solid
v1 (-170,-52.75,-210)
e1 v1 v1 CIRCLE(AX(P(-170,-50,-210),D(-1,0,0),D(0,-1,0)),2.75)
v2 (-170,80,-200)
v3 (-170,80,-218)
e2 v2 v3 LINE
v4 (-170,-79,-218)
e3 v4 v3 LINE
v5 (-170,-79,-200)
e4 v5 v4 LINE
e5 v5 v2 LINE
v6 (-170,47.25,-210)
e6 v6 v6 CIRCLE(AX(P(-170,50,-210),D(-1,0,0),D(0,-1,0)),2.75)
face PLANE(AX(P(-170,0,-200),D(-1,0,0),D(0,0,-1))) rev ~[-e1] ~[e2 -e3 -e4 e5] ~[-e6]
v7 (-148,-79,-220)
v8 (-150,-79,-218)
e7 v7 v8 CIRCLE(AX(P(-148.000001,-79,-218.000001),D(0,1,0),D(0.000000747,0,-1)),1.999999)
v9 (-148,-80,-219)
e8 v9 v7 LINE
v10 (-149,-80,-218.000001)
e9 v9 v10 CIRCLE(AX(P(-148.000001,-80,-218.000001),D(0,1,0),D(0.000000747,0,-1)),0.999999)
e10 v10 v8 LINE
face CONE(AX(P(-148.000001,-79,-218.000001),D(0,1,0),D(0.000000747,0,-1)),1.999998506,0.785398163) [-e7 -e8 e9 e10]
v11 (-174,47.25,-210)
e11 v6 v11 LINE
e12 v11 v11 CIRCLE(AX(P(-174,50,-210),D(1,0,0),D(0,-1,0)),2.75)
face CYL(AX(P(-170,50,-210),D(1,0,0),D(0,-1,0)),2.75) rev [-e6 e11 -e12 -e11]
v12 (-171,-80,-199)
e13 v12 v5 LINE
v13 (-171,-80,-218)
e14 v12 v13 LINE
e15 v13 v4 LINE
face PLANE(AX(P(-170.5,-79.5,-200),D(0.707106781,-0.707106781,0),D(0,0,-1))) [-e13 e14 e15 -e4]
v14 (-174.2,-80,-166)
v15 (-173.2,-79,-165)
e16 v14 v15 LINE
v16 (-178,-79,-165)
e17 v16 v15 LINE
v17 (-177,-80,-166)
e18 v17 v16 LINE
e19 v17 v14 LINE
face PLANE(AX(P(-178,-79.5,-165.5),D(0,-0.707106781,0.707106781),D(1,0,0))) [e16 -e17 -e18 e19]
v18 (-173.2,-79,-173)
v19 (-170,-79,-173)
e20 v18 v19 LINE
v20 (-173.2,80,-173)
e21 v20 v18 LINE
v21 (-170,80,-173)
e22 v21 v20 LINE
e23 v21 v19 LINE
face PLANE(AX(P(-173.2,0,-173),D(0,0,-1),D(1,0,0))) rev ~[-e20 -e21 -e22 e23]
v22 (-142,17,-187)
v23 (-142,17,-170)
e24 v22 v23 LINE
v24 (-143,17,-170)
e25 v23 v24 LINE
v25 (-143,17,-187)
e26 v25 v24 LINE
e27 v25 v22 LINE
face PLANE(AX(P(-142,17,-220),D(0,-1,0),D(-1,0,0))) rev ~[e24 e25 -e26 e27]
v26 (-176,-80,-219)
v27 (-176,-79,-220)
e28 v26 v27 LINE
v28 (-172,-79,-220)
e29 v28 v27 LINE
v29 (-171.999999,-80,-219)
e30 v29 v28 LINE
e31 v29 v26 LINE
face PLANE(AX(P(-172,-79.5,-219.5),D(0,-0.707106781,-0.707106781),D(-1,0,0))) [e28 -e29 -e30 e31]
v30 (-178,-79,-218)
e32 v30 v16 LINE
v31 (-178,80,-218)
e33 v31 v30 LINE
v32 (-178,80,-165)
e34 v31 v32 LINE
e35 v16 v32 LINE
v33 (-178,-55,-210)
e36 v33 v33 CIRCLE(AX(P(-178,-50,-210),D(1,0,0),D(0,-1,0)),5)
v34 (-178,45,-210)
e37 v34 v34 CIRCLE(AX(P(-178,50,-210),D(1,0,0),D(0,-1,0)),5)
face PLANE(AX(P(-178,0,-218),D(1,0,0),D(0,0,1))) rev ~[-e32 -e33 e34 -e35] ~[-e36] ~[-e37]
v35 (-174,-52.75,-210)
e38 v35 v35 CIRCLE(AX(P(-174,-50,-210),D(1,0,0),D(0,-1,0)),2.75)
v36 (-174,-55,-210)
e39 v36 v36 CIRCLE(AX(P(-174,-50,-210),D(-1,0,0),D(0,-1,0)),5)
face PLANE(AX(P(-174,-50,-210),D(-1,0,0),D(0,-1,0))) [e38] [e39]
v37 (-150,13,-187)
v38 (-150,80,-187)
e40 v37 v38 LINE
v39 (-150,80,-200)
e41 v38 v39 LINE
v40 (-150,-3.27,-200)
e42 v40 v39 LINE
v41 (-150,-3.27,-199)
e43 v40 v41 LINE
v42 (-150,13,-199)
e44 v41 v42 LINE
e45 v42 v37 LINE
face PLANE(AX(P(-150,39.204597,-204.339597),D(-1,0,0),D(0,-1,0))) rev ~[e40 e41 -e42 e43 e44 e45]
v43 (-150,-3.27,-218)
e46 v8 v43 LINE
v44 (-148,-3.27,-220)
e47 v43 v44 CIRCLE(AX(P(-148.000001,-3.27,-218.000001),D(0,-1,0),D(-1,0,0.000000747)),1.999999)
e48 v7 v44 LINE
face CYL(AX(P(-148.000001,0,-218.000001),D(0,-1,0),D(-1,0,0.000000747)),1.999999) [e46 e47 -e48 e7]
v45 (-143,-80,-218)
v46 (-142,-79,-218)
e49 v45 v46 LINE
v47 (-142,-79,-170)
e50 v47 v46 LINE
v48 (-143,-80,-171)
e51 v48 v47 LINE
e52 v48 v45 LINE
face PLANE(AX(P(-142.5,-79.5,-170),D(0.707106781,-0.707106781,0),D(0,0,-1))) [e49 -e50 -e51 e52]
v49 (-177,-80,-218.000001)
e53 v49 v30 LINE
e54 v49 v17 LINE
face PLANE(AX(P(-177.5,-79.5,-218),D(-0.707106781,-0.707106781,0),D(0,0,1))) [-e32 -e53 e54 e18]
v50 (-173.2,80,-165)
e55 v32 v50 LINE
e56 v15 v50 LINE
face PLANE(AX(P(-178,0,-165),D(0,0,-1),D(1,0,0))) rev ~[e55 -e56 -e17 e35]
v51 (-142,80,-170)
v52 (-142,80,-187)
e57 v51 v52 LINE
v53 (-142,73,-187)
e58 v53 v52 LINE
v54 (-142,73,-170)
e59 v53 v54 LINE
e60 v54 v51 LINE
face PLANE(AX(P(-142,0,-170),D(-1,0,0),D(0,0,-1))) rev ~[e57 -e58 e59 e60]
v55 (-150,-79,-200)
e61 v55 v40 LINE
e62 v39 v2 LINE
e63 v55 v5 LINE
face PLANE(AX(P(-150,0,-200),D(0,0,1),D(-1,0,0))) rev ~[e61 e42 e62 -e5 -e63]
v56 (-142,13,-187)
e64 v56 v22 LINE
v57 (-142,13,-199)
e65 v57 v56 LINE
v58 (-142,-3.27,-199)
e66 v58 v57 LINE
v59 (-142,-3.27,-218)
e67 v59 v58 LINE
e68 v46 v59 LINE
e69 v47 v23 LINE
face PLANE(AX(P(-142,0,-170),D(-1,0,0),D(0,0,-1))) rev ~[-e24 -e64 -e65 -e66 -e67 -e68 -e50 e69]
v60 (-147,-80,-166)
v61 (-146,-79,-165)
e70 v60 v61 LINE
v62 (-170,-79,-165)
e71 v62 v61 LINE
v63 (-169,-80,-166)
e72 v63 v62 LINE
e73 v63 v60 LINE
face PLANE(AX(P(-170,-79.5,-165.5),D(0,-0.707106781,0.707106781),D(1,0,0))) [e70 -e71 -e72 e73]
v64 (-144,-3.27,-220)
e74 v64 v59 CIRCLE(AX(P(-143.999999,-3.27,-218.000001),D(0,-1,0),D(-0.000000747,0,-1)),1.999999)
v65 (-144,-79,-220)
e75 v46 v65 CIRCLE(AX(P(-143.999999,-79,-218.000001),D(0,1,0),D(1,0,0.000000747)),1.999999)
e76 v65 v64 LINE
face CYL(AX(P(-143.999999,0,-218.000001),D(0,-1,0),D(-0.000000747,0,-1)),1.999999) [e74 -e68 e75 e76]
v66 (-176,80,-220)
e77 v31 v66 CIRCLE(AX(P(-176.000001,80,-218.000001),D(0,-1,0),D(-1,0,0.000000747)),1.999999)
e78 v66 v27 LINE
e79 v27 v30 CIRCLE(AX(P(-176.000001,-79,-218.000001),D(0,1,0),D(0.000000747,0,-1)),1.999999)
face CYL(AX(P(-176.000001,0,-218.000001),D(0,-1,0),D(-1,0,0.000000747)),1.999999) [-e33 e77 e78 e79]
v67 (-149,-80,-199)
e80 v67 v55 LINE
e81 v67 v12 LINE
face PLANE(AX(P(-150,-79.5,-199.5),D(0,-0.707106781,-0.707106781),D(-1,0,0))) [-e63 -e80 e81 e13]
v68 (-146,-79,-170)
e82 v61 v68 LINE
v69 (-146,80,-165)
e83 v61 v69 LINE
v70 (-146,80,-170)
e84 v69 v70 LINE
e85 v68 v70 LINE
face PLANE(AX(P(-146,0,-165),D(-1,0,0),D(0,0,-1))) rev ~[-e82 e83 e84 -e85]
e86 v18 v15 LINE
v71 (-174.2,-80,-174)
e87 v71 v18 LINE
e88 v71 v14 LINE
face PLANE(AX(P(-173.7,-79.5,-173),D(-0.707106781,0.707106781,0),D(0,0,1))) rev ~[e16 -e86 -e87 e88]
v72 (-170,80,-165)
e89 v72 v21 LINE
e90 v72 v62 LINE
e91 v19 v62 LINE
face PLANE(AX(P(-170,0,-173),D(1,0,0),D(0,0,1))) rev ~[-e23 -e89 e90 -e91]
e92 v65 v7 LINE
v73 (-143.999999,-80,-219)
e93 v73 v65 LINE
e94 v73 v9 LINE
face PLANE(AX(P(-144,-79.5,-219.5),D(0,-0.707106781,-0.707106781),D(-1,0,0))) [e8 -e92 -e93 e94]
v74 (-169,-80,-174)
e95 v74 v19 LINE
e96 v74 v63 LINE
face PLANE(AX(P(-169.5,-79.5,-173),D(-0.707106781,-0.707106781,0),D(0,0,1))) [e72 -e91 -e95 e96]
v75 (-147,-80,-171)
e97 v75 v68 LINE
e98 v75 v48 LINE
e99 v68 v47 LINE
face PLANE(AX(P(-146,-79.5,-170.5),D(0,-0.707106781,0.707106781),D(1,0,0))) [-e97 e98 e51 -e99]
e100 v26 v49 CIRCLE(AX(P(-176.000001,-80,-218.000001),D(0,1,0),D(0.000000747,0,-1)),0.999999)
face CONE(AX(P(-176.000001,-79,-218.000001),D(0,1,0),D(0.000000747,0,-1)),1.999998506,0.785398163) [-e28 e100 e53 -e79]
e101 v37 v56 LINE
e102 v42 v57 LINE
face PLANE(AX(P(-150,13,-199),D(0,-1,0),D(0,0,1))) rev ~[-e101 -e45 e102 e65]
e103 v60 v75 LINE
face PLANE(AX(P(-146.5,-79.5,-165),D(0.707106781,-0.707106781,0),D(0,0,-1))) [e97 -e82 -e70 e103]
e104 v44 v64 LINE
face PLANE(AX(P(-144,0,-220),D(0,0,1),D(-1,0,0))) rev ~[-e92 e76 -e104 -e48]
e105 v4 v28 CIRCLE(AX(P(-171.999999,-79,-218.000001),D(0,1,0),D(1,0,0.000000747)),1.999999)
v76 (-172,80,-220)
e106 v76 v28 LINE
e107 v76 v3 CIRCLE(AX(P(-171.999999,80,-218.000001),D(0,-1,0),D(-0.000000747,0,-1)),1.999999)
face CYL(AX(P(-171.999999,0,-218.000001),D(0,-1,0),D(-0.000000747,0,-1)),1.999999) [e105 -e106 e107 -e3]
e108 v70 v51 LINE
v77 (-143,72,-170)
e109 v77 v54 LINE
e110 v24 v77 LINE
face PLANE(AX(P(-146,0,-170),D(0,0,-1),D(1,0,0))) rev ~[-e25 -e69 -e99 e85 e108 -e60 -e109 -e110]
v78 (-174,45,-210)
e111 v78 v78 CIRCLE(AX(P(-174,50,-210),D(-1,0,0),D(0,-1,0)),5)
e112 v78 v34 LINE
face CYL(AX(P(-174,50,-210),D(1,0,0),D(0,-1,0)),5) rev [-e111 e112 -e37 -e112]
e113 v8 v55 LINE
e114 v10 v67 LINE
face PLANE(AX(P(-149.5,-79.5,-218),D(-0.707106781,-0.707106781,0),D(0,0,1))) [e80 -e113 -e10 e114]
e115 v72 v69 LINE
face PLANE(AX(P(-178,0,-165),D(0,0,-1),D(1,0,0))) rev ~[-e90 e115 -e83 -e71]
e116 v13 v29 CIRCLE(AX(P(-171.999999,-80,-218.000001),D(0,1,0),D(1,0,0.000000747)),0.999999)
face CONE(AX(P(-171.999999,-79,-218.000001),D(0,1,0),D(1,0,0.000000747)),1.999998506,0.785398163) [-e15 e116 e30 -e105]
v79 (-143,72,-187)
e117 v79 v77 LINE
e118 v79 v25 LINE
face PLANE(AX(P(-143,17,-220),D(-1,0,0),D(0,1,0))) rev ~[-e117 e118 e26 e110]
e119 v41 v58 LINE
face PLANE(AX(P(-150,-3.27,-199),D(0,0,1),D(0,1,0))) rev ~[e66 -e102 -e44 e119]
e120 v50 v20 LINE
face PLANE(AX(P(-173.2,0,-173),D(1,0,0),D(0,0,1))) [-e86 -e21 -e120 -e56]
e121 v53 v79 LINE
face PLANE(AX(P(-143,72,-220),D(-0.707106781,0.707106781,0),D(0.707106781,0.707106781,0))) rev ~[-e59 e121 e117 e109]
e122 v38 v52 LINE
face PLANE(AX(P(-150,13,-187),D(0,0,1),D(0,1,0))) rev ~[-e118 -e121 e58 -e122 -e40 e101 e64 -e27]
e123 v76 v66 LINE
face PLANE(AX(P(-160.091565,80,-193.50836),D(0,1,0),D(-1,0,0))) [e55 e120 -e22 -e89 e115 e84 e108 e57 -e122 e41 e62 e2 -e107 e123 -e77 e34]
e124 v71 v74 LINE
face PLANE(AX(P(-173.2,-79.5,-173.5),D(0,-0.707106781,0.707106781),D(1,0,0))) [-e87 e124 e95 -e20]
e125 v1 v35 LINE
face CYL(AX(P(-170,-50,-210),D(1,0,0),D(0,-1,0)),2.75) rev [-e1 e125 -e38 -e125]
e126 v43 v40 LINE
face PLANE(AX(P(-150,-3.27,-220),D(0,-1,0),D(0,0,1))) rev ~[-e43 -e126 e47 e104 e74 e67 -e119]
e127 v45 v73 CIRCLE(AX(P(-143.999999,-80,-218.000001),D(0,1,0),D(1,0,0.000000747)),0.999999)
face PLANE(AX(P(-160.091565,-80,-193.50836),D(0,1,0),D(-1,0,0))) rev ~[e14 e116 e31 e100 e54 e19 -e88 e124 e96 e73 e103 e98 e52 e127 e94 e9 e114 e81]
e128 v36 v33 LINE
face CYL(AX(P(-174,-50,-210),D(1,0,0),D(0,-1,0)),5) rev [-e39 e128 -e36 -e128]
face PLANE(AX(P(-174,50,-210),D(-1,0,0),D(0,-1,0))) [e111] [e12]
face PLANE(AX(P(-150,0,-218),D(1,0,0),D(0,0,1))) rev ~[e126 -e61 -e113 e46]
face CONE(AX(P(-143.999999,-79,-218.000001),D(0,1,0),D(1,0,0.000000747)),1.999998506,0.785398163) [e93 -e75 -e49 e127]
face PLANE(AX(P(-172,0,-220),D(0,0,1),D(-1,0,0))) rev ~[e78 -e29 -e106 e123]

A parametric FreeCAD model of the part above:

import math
import FreeCAD as App
import Part
import Sketcher
Q = App.Units.Quantity


def edges_at(feature, points):
    """Names of the edges that pass closest to the given points."""
    edges = feature.Shape.Edges
    near = lambda p: min(range(len(edges)), key=lambda i: edges[i].distToShape(Part.Vertex(*p))[0])
    return sorted({f"Edge{near(p) + 1}" for p in points})


def add_polygon(sketch, points):
    """Adds a closed chain of lines whose ends are joined by coincident constraints."""
    first, n = sketch.GeometryCount, len(points)
    for a, b in zip(points, points[1:] + points[:1]):
        sketch.addGeometry(Part.LineSegment(App.Vector(*a, 0), App.Vector(*b, 0)), False)
    for i in range(n):
        sketch.addConstraint(Sketcher.Constraint("Coincident", first + i, 2, first + (i + 1) % n, 1))

doc = App.newDocument("Part")
body = doc.addObject("PartDesign::Body", "Body")

# Sketch on YZ plane
sketch1 = body.newObject("Sketcher::SketchObject", "Sketch")
sketch1.AttachmentSupport = (doc.getObject("YZ_Plane"), [""])
sketch1.MapMode = "FlatFace"
sketch1.addGeometry(Part.LineSegment(App.Vector(-8, 55, 0), App.Vector(-8, 2, 0)), False)
sketch1.addGeometry(Part.ArcOfCircle(Part.Circle(App.Vector(-6, 2, 0), App.Vector(0, 0, 1), 2), math.radians(180), math.radians(270)), False)
sketch1.addGeometry(Part.LineSegment(App.Vector(-6, 0, 0), App.Vector(-2, 0, 0)), False)
sketch1.addGeometry(Part.ArcOfCircle(Part.Circle(App.Vector(-2, 2, 0), App.Vector(0, 0, 1), 2), math.radians(-90), math.radians(0)), False)
sketch1.addGeometry(Part.LineSegment(App.Vector(0, 2, 0), App.Vector(0, 20, 0)), False)
sketch1.addGeometry(Part.LineSegment(App.Vector(0, 20, 0), App.Vector(20, 20, 0)), False)
sketch1.addGeometry(Part.LineSegment(App.Vector(20, 20, 0), App.Vector(20, 2, 0)), False)
sketch1.addGeometry(Part.ArcOfCircle(Part.Circle(App.Vector(22, 2, 0), App.Vector(0, 0, 1), 2), math.radians(180), math.radians(270)), False)
sketch1.addGeometry(Part.LineSegment(App.Vector(22, 0, 0), App.Vector(26, 0, 0)), False)
sketch1.addGeometry(Part.ArcOfCircle(Part.Circle(App.Vector(26, 2, 0), App.Vector(0, 0, 1), 2), math.radians(-90), math.radians(0)), False)
sketch1.addGeometry(Part.LineSegment(App.Vector(28, 2, 0), App.Vector(28, 50, 0)), False)
sketch1.addGeometry(Part.LineSegment(App.Vector(28, 50, 0), App.Vector(24, 50, 0)), False)
sketch1.addGeometry(Part.LineSegment(App.Vector(24, 50, 0), App.Vector(24, 55, 0)), False)
sketch1.addGeometry(Part.LineSegment(App.Vector(24, 55, 0), App.Vector(-8, 55, 0)), False)
sketch1.addConstraint(Sketcher.Constraint("Tangent", 0, 2, 1, 1))
sketch1.addConstraint(Sketcher.Constraint("Tangent", 1, 2, 2, 1))
sketch1.addConstraint(Sketcher.Constraint("Tangent", 2, 2, 3, 1))
sketch1.addConstraint(Sketcher.Constraint("Tangent", 3, 2, 4, 1))
sketch1.addConstraint(Sketcher.Constraint("Coincident", 4, 2, 5, 1))
sketch1.addConstraint(Sketcher.Constraint("Coincident", 5, 2, 6, 1))
sketch1.addConstraint(Sketcher.Constraint("Tangent", 6, 2, 7, 1))
sketch1.addConstraint(Sketcher.Constraint("Tangent", 7, 2, 8, 1))
sketch1.addConstraint(Sketcher.Constraint("Tangent", 8, 2, 9, 1))
sketch1.addConstraint(Sketcher.Constraint("Tangent", 9, 2, 10, 1))
sketch1.addConstraint(Sketcher.Constraint("Coincident", 10, 2, 11, 1))
sketch1.addConstraint(Sketcher.Constraint("Coincident", 11, 2, 12, 1))
sketch1.addConstraint(Sketcher.Constraint("Coincident", 12, 2, 13, 1))
sketch1.addConstraint(Sketcher.Constraint("Coincident", 13, 2, 0, 1))
sketch1.addConstraint(Sketcher.Constraint("Vertical", 0))
sketch1.addConstraint(Sketcher.Constraint("Horizontal", 2))
sketch1.addConstraint(Sketcher.Constraint("Vertical", 4))
sketch1.addConstraint(Sketcher.Constraint("Horizontal", 5))
sketch1.addConstraint(Sketcher.Constraint("Vertical", 6))
sketch1.addConstraint(Sketcher.Constraint("Horizontal", 8))
sketch1.addConstraint(Sketcher.Constraint("Vertical", 10))
sketch1.addConstraint(Sketcher.Constraint("Horizontal", 11))
sketch1.addConstraint(Sketcher.Constraint("Vertical", 12))
sketch1.addConstraint(Sketcher.Constraint("Horizontal", 13))
sketch1.addConstraint(Sketcher.Constraint("Equal", 1, 3))
sketch1.addConstraint(Sketcher.Constraint("Equal", 3, 7))
sketch1.addConstraint(Sketcher.Constraint("Equal", 7, 9))
sketch1.addConstraint(Sketcher.Constraint("PointOnObject", 1, 2, -1))
sketch1.addConstraint(Sketcher.Constraint("PointOnObject", 3, 2, -2))
sketch1.addConstraint(Sketcher.Constraint("PointOnObject", 7, 2, -1))
sketch1.addConstraint(Sketcher.Constraint("Equal", 2, 8))
sketch1.addConstraint(Sketcher.Constraint("Equal", 8, 11))
sketch1.addConstraint(Sketcher.Constraint("Radius", 1, Q("1.999999 mm")))
sketch1.addConstraint(Sketcher.Constraint("DistanceX", 2, 1, 2, 2, Q("4 mm")))
sketch1.addConstraint(Sketcher.Constraint("DistanceX", 5, 1, 5, 2, Q("20 mm")))
sketch1.addConstraint(Sketcher.Constraint("DistanceY", 0, 2, 0, 1, Q("53 mm")))
sketch1.addConstraint(Sketcher.Constraint("DistanceY", 4, 1, 4, 2, Q("18 mm")))
sketch1.addConstraint(Sketcher.Constraint("DistanceY", 10, 1, 10, 2, Q("48 mm")))
pad1 = body.newObject("PartDesign::Pad", "Pad")
pad1.Profile = sketch1
pad1.Length = 160
pad1.Midplane = True

# Sketch on XZ plane
sketch2 = body.newObject("Sketcher::SketchObject", "Sketch001")
sketch2.AttachmentSupport = (doc.getObject("XZ_Plane"), [""])
sketch2.MapMode = "FlatFace"
sketch2.addGeometry(Part.Circle(App.Vector(-50, 10, 0), App.Vector(0, 0, 1), 2.8), False)
sketch2.addGeometry(Part.Circle(App.Vector(50, 10, 0), App.Vector(0, 0, 1), 2.8), False)
sketch2.addConstraint(Sketcher.Constraint("Equal", 0, 1))
sketch2.addConstraint(Sketcher.Constraint("Symmetric", 0, 3, 1, 3, -2))
sketch2.addConstraint(Sketcher.Constraint("Diameter", 0, Q("5.5 mm")))
sketch2.addConstraint(Sketcher.Constraint("DistanceX", 0, 3, -1, 1, Q("50 mm")))
sketch2.addConstraint(Sketcher.Constraint("DistanceY", -1, 1, 0, 3, Q("10 mm")))
pocket1 = body.newObject("PartDesign::Pocket", "Pocket")
pocket1.Profile = sketch2
pocket1.Type = "ThroughAll"
pocket1.Reversed = True

# Sketch on XZ plane
sketch3 = body.newObject("Sketcher::SketchObject", "Sketch002")
sketch3.AttachmentSupport = (doc.getObject("XZ_Plane"), [""])
sketch3.MapMode = "FlatFace"
sketch3.AttachmentOffset = App.Placement(App.Vector(0, 0, 4), App.Rotation())
sketch3.addGeometry(Part.Circle(App.Vector(50, 10, 0), App.Vector(0, 0, 1), 5), False)
sketch3.addGeometry(Part.Circle(App.Vector(-50, 10, 0), App.Vector(0, 0, 1), 5), False)
sketch3.addConstraint(Sketcher.Constraint("Equal", 0, 1))
sketch3.addConstraint(Sketcher.Constraint("Symmetric", 0, 3, 1, 3, -2))
sketch3.addConstraint(Sketcher.Constraint("Diameter", 0, Q("10 mm")))
sketch3.addConstraint(Sketcher.Constraint("DistanceX", -1, 1, 0, 3, Q("50 mm")))
sketch3.addConstraint(Sketcher.Constraint("DistanceY", -1, 1, 0, 3, Q("10 mm")))
pocket2 = body.newObject("PartDesign::Pocket", "Pocket001")
pocket2.Profile = sketch3
pocket2.Type = "ThroughAll"
pocket2.Reversed = True

# Sketch on YZ plane
sketch4 = body.newObject("Sketcher::SketchObject", "Sketch003")
sketch4.AttachmentSupport = (doc.getObject("YZ_Plane"), [""])
sketch4.MapMode = "FlatFace"
add_polygon(sketch4, [(-3.2, 55), (-3.2, 47), (0, 47), (0, 55)])  # lines 0-3
sketch4.addConstraint(Sketcher.Constraint("Vertical", 0))
sketch4.addConstraint(Sketcher.Constraint("Horizontal", 1))
sketch4.addConstraint(Sketcher.Constraint("Vertical", 2))
sketch4.addConstraint(Sketcher.Constraint("Horizontal", 3))
sketch4.addConstraint(Sketcher.Constraint("PointOnObject", 1, 2, -2))
sketch4.addConstraint(Sketcher.Constraint("DistanceY", 0, 2, 0, 1, Q("8 mm")))
sketch4.addConstraint(Sketcher.Constraint("DistanceX", 1, 1, 1, 2, Q("3.2 mm")))
sketch4.addConstraint(Sketcher.Constraint("DistanceY", -1, 1, 0, 2, Q("47 mm")))
pocket3 = body.newObject("PartDesign::Pocket", "Pocket002")
pocket3.Profile = sketch4
pocket3.Type = "ThroughAll"
pocket3.Midplane = True

# Sketch on XZ plane
sketch5 = body.newObject("Sketcher::SketchObject", "Sketch004")
sketch5.AttachmentSupport = (doc.getObject("XZ_Plane"), [""])
sketch5.MapMode = "FlatFace"
sketch5.AttachmentOffset = App.Placement(App.Vector(0, 0, -20), App.Rotation())
add_polygon(sketch5, [(3, 0), (3, 21), (-13, 21), (-13, 33), (-80, 33), (-80, 0)])  # lines 0-5
sketch5.addConstraint(Sketcher.Constraint("Vertical", 0))
sketch5.addConstraint(Sketcher.Constraint("Horizontal", 1))
sketch5.addConstraint(Sketcher.Constraint("Vertical", 2))
sketch5.addConstraint(Sketcher.Constraint("Horizontal", 3))
sketch5.addConstraint(Sketcher.Constraint("Vertical", 4))
sketch5.addConstraint(Sketcher.Constraint("Horizontal", 5))
sketch5.addConstraint(Sketcher.Constraint("PointOnObject", 4, 2, -1))
sketch5.addConstraint(Sketcher.Constraint("DistanceX", 3, 2, 3, 1, Q("67 mm")))
sketch5.addConstraint(Sketcher.Constraint("DistanceY", 0, 1, 0, 2, Q("21 mm")))
sketch5.addConstraint(Sketcher.Constraint("DistanceY", 2, 1, 2, 2, Q("12 mm")))
sketch5.addConstraint(Sketcher.Constraint("DistanceX", 1, 2, -1, 1, Q("13 mm")))
sketch5.addConstraint(Sketcher.Constraint("DistanceX", 1, 2, 1, 1, Q("16.27 mm")))
pocket4 = body.newObject("PartDesign::Pocket", "Pocket003")
pocket4.Profile = sketch5
pocket4.Type = "ThroughAll"

# Sketch on XY plane
sketch6 = body.newObject("Sketcher::SketchObject", "Sketch005")
sketch6.AttachmentSupport = (doc.getObject("XY_Plane"), [""])
sketch6.MapMode = "FlatFace"
add_polygon(sketch6, [(-17, 27), (-17, 28), (-73, 28), (-72, 27)])  # lines 0-3
sketch6.addConstraint(Sketcher.Constraint("Vertical", 0))
sketch6.addConstraint(Sketcher.Constraint("Horizontal", 1))
sketch6.addConstraint(Sketcher.Constraint("Horizontal", 3))
sketch6.addConstraint(Sketcher.Constraint("DistanceX", 1, 2, 1, 1, Q("56 mm")))
sketch6.addConstraint(Sketcher.Constraint("DistanceX", 3, 1, 3, 2, Q("55 mm")))
sketch6.addConstraint(Sketcher.Constraint("DistanceY", 0, 1, 0, 2, Q("1 mm")))
sketch6.addConstraint(Sketcher.Constraint("DistanceX", 0, 2, -1, 1, Q("17 mm")))
sketch6.addConstraint(Sketcher.Constraint("DistanceY", -1, 1, 0, 2, Q("28 mm")))
pocket5 = body.newObject("PartDesign::Pocket", "Pocket004")
pocket5.Profile = sketch6
pocket5.Type = "ThroughAll"
pocket5.Midplane = True
doc.recompute()

chamfer = body.newObject("PartDesign::Chamfer", "Chamfer")
chamfer.Base = (pocket5, edges_at(pocket5, [
    (80, -4, 0),
    (80, -7.414, 0.586),
    (80, -8, 28.5),
    (80, -5.6, 55),
    (80, -3.2, 51),
    (80, -1.6, 47),
    (80, 0, 51),
    (80, 12, 55),
    (80, 24, 52.5),
    (80, 26, 50),
    (80, 28, 26),
    (80, 27.414, 0.586),
    (80, 24, 0),
    (80, 20.586, 0.586),
    (80, 20, 11),
    (80, 10, 20),
    (80, 0, 11),
    (80, -0.586, 0.586),
]))
chamfer.Size = 1
body2 = doc.addObject("PartDesign::Body", "Body001")
doc.recompute()

body.Placement = App.Placement(App.Vector(-170, 0, -220), App.Rotation(App.Vector(0, 0, -1), 90))
boolean = body2.newObject("PartDesign::Boolean", "Boolean")
boolean.Type = "Fuse"
boolean.addObjects([body])

doc.recompute()
